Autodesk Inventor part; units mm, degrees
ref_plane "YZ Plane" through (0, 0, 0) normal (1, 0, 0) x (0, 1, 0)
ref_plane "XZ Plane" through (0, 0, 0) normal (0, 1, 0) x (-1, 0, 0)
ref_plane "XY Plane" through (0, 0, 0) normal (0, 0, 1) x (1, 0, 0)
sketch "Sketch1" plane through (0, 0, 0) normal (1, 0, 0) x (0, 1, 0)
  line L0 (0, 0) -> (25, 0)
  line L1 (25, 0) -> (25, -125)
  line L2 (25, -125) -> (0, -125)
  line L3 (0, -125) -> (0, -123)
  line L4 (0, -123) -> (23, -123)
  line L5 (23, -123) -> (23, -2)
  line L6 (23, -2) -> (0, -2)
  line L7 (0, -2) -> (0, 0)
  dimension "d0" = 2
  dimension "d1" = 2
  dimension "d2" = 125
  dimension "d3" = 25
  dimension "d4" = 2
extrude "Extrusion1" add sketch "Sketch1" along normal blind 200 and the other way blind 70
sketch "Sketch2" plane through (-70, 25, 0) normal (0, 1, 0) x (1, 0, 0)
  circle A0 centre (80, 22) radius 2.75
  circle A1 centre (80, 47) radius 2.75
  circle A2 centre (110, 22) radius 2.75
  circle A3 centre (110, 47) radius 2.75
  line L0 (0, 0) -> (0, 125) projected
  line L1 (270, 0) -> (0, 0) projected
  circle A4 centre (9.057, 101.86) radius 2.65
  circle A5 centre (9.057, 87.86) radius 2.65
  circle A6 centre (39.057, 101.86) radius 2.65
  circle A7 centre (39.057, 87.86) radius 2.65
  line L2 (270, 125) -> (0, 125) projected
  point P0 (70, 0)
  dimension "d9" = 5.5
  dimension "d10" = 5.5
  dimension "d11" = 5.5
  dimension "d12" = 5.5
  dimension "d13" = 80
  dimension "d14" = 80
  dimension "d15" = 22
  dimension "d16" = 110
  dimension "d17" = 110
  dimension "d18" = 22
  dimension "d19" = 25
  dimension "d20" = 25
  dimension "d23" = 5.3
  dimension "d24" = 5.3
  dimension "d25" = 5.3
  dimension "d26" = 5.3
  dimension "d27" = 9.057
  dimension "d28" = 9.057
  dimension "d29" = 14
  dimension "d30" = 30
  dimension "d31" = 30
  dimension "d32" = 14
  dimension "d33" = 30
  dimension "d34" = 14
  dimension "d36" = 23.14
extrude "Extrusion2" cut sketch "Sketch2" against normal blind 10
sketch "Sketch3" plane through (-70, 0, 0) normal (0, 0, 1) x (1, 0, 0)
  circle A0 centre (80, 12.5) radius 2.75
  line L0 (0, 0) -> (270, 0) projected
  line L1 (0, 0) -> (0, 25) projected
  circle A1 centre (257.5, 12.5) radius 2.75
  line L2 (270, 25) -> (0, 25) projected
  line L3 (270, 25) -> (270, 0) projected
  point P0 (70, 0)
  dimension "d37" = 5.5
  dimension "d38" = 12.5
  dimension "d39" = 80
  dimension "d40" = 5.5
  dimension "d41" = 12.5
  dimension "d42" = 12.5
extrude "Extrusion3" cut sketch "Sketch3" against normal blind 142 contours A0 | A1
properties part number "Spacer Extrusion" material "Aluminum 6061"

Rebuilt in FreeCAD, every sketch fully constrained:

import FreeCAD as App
import Part
import Sketcher

V = App.Vector

doc = App.newDocument("Part")
body = doc.addObject("PartDesign::Body", "Body")

sketch1 = body.newObject("Sketcher::SketchObject", "Sketch")
sketch1.AttachmentSupport = (doc.getObject("YZ_Plane"), [""])
sketch1.MapMode = "FlatFace"
sketch1.addGeometry(Part.LineSegment(V(25, 0, 0), V(0, 0, 0)), False)
sketch1.addGeometry(Part.LineSegment(V(0, 0, 0), V(0, -2, 0)), False)
sketch1.addGeometry(Part.LineSegment(V(0, -2, 0), V(23, -2, 0)), False)
sketch1.addGeometry(Part.LineSegment(V(23, -2, 0), V(23, -123, 0)), False)
sketch1.addGeometry(Part.LineSegment(V(23, -123, 0), V(0, -123, 0)), False)
sketch1.addGeometry(Part.LineSegment(V(0, -123, 0), V(0, -125, 0)), False)
sketch1.addGeometry(Part.LineSegment(V(0, -125, 0), V(25, -125, 0)), False)
sketch1.addGeometry(Part.LineSegment(V(25, -125, 0), V(25, 0, 0)), False)
sketch1.addConstraint(Sketcher.Constraint("Coincident", 0, 2, 1, 1))
sketch1.addConstraint(Sketcher.Constraint("Coincident", 1, 2, 2, 1))
sketch1.addConstraint(Sketcher.Constraint("Coincident", 2, 2, 3, 1))
sketch1.addConstraint(Sketcher.Constraint("Coincident", 3, 2, 4, 1))
sketch1.addConstraint(Sketcher.Constraint("Coincident", 4, 2, 5, 1))
sketch1.addConstraint(Sketcher.Constraint("Coincident", 5, 2, 6, 1))
sketch1.addConstraint(Sketcher.Constraint("Coincident", 6, 2, 7, 1))
sketch1.addConstraint(Sketcher.Constraint("Coincident", 7, 2, 0, 1))
sketch1.addConstraint(Sketcher.Constraint("Horizontal", 0))
sketch1.addConstraint(Sketcher.Constraint("Vertical", 1))
sketch1.addConstraint(Sketcher.Constraint("Horizontal", 2))
sketch1.addConstraint(Sketcher.Constraint("Vertical", 3))
sketch1.addConstraint(Sketcher.Constraint("Horizontal", 4))
sketch1.addConstraint(Sketcher.Constraint("Vertical", 5))
sketch1.addConstraint(Sketcher.Constraint("Horizontal", 6))
sketch1.addConstraint(Sketcher.Constraint("Vertical", 7))
sketch1.addConstraint(Sketcher.Constraint("Coincident", 0, 2, -1, 1))
sketch1.addConstraint(Sketcher.Constraint("PointOnObject", 4, 2, -2))
sketch1.addConstraint(Sketcher.Constraint("Equal", 1, 5))
sketch1.addConstraint(Sketcher.Constraint("DistanceX", 0, 2, 0, 1, 25.0))
sketch1.addConstraint(Sketcher.Constraint("DistanceY", 1, 2, 1, 1, 2.0))
sketch1.addConstraint(Sketcher.Constraint("DistanceY", 7, 1, 7, 2, 125.0))
sketch1.addConstraint(Sketcher.Constraint("DistanceX", 3, 2, 6, 2, 2.0))
pad1 = body.newObject("PartDesign::Pad", "Pad")
pad1.Profile = sketch1
pad1.Type = "TwoLengths"
pad1.Length = 200
pad1.Length2 = 70

sketch2 = body.newObject("Sketcher::SketchObject", "Sketch001")
sketch2.AttachmentSupport = (doc.getObject("XZ_Plane"), [""])
sketch2.MapMode = "FlatFace"
sketch2.AttachmentOffset = App.Placement(V(0, 0, -25), App.Rotation())
sketch2.addGeometry(Part.Circle(V(10, -22, 0), V(0, 0, 1), 2.8), False)
sketch2.addGeometry(Part.Circle(V(10, -47, 0), V(0, 0, 1), 2.8), False)
sketch2.addGeometry(Part.Circle(V(40, -22, 0), V(0, 0, 1), 2.8), False)
sketch2.addGeometry(Part.Circle(V(40, -47, 0), V(0, 0, 1), 2.8), False)
sketch2.addGeometry(Part.Circle(V(-60.9, -101.9, 0), V(0, 0, 1), 2.6), False)
sketch2.addGeometry(Part.Circle(V(-60.9, -87.9, 0), V(0, 0, 1), 2.6), False)
sketch2.addGeometry(Part.Circle(V(-30.9, -101.9, 0), V(0, 0, 1), 2.6), False)
sketch2.addGeometry(Part.Circle(V(-30.9, -87.9, 0), V(0, 0, 1), 2.6), False)
sketch2.addConstraint(Sketcher.Constraint("Equal", 0, 1))
sketch2.addConstraint(Sketcher.Constraint("Equal", 1, 2))
sketch2.addConstraint(Sketcher.Constraint("Equal", 2, 3))
sketch2.addConstraint(Sketcher.Constraint("Equal", 4, 5))
sketch2.addConstraint(Sketcher.Constraint("Equal", 5, 6))
sketch2.addConstraint(Sketcher.Constraint("Equal", 6, 7))
sketch2.addConstraint(Sketcher.Constraint("Horizontal", 0, 3, 2, 3))
sketch2.addConstraint(Sketcher.Constraint("Horizontal", 1, 3, 3, 3))
sketch2.addConstraint(Sketcher.Constraint("Horizontal", 4, 3, 6, 3))
sketch2.addConstraint(Sketcher.Constraint("Horizontal", 5, 3, 7, 3))
sketch2.addConstraint(Sketcher.Constraint("Vertical", 0, 3, 1, 3))
sketch2.addConstraint(Sketcher.Constraint("Vertical", 2, 3, 3, 3))
sketch2.addConstraint(Sketcher.Constraint("Vertical", 4, 3, 5, 3))
sketch2.addConstraint(Sketcher.Constraint("Vertical", 6, 3, 7, 3))
sketch2.addConstraint(Sketcher.Constraint("Diameter", 0, 5.5))
sketch2.addConstraint(Sketcher.Constraint("Diameter", 4, 5.3))
sketch2.addConstraint(Sketcher.Constraint("DistanceY", 0, 3, -1, 1, 22.0))
sketch2.addConstraint(Sketcher.Constraint("DistanceY", 1, 3, 0, 3, 25.0))
sketch2.addConstraint(Sketcher.Constraint("DistanceX", 0, 3, 2, 3, 30.0))
sketch2.addConstraint(Sketcher.Constraint("DistanceY", 4, 3, 5, 3, 14.0))
sketch2.addConstraint(Sketcher.Constraint("DistanceX", 4, 3, 6, 3, 30.0))
sketch2.addConstraint(Sketcher.Constraint("DistanceX", -1, 1, 0, 3, 10.0))
sketch2.addConstraint(Sketcher.Constraint("DistanceY", 4, 3, -1, 1, 101.86))
sketch2.addConstraint(Sketcher.Constraint("DistanceX", 4, 3, -1, 1, 60.943))
pocket1 = body.newObject("PartDesign::Pocket", "Pocket")
pocket1.Profile = sketch2
pocket1.Length = 10
pocket1.Reversed = True

sketch3 = body.newObject("Sketcher::SketchObject", "Sketch002")
sketch3.AttachmentSupport = (doc.getObject("XY_Plane"), [""])
sketch3.MapMode = "FlatFace"
sketch3.addGeometry(Part.Circle(V(10, 12.5, 0), V(0, 0, 1), 2.8), False)
sketch3.addGeometry(Part.Circle(V(187.5, 12.5, 0), V(0, 0, 1), 2.8), False)
sketch3.addConstraint(Sketcher.Constraint("Equal", 0, 1))
sketch3.addConstraint(Sketcher.Constraint("Horizontal", 0, 3, 1, 3))
sketch3.addConstraint(Sketcher.Constraint("Diameter", 0, 5.5))
sketch3.addConstraint(Sketcher.Constraint("DistanceY", -1, 1, 0, 3, 12.5))
sketch3.addConstraint(Sketcher.Constraint("DistanceX", -1, 1, 0, 3, 10.0))
sketch3.addConstraint(Sketcher.Constraint("DistanceX", -1, 1, 1, 3, 187.5))
pocket2 = body.newObject("PartDesign::Pocket", "Pocket001")
pocket2.Profile = sketch3
pocket2.Length = 142

doc.recompute()
